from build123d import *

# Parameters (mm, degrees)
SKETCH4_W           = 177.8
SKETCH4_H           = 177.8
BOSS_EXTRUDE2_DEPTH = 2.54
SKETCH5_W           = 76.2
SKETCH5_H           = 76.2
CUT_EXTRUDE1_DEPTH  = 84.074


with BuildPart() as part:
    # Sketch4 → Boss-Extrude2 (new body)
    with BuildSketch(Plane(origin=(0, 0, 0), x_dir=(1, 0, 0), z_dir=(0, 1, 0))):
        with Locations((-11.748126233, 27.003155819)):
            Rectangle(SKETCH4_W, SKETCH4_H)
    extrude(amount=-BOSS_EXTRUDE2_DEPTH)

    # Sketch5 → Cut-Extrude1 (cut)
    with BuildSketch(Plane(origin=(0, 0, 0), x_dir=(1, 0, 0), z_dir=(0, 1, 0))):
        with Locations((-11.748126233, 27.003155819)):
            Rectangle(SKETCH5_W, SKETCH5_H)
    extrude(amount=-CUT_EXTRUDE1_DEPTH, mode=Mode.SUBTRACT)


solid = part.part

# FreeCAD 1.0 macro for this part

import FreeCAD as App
import Part
import Sketcher
from FreeCAD import Vector
Q = App.Units.Quantity


def add_polygon(sketch, points):
    """Adds a closed chain of lines whose ends are joined by coincident constraints."""
    first, n = sketch.GeometryCount, len(points)
    for a, b in zip(points, points[1:] + points[:1]):
        sketch.addGeometry(Part.LineSegment(App.Vector(*a, 0), App.Vector(*b, 0)), False)
    for i in range(n):
        sketch.addConstraint(Sketcher.Constraint("Coincident", first + i, 2, first + (i + 1) % n, 1))

doc = App.newDocument("Part")
params = doc.addObject("Spreadsheet::Sheet", "Params")
for row, (alias, value) in enumerate([
    ("sketch1_width", "7 in"),
    ("pad1_length", "0.1 in"),
    ("sketch2_width", "3 in"),
    ("pocket1_length", "3.31 in"),
], start=1):
    params.set(f"A{row}", alias)
    params.set(f"B{row}", "=" + value)
    params.setAlias(f"B{row}", alias)

body = doc.addObject("PartDesign::Body", "Body")

# Sketch on XZ plane
sketch1 = doc.addObject("Sketcher::SketchObject", "Sketch")
body.addObject(sketch1)
sketch1.AttachmentSupport = (doc.XZ_Plane, [""])
sketch1.MapMode = "FlatFace"
add_polygon(sketch1, [(-100.648126, -115.903156), (-100.648126, 61.896844), (77.151874, 61.896844), (77.151874, -115.903156)])  # lines 0-3
sketch1.addConstraint([
    Sketcher.Constraint("Vertical", 0),
    Sketcher.Constraint("Horizontal", 1),
    Sketcher.Constraint("Vertical", 2),
    Sketcher.Constraint("Horizontal", 3),
    Sketcher.Constraint("Equal", 3, 0),
    Sketcher.Constraint("DistanceX", 1, 1, 1, 2, Q("7 in")),
    Sketcher.Constraint("DistanceX", 0, 2, -1, 1, Q("100.648126 mm")),
    Sketcher.Constraint("DistanceY", -1, 1, 0, 2, Q("61.896844 mm")),
])
sketch1.setExpression("Constraints[9]", "Params.sketch1_width")
pad1 = doc.addObject("PartDesign::Pad", "Pad")
body.addObject(pad1)
pad1.Profile = sketch1
pad1.setExpression("Length", "Params.pad1_length")

# Sketch on XZ plane
sketch2 = doc.addObject("Sketcher::SketchObject", "Sketch001")
body.addObject(sketch2)
sketch2.AttachmentSupport = (doc.XZ_Plane, [""])
sketch2.MapMode = "FlatFace"
add_polygon(sketch2, [(-49.848126, -65.103156), (-49.848126, 11.096844), (26.351874, 11.096844), (26.351874, -65.103156)])  # lines 0-3
sketch2.addConstraint([
    Sketcher.Constraint("Vertical", 0),
    Sketcher.Constraint("Horizontal", 1),
    Sketcher.Constraint("Vertical", 2),
    Sketcher.Constraint("Horizontal", 3),
    Sketcher.Constraint("Equal", 3, 0),
    Sketcher.Constraint("DistanceX", 1, 1, 1, 2, Q("3 in")),
    Sketcher.Constraint("DistanceX", 0, 2, -1, 1, Q("49.848126 mm")),
    Sketcher.Constraint("DistanceY", -1, 1, 0, 2, Q("11.096844 mm")),
])
sketch2.setExpression("Constraints[9]", "Params.sketch2_width")
pocket1 = doc.addObject("PartDesign::Pocket", "Pocket")
body.addObject(pocket1)
pocket1.Profile = sketch2
pocket1.setExpression("Length", "Params.pocket1_length")
pocket1.Reversed = True

doc.recompute()
